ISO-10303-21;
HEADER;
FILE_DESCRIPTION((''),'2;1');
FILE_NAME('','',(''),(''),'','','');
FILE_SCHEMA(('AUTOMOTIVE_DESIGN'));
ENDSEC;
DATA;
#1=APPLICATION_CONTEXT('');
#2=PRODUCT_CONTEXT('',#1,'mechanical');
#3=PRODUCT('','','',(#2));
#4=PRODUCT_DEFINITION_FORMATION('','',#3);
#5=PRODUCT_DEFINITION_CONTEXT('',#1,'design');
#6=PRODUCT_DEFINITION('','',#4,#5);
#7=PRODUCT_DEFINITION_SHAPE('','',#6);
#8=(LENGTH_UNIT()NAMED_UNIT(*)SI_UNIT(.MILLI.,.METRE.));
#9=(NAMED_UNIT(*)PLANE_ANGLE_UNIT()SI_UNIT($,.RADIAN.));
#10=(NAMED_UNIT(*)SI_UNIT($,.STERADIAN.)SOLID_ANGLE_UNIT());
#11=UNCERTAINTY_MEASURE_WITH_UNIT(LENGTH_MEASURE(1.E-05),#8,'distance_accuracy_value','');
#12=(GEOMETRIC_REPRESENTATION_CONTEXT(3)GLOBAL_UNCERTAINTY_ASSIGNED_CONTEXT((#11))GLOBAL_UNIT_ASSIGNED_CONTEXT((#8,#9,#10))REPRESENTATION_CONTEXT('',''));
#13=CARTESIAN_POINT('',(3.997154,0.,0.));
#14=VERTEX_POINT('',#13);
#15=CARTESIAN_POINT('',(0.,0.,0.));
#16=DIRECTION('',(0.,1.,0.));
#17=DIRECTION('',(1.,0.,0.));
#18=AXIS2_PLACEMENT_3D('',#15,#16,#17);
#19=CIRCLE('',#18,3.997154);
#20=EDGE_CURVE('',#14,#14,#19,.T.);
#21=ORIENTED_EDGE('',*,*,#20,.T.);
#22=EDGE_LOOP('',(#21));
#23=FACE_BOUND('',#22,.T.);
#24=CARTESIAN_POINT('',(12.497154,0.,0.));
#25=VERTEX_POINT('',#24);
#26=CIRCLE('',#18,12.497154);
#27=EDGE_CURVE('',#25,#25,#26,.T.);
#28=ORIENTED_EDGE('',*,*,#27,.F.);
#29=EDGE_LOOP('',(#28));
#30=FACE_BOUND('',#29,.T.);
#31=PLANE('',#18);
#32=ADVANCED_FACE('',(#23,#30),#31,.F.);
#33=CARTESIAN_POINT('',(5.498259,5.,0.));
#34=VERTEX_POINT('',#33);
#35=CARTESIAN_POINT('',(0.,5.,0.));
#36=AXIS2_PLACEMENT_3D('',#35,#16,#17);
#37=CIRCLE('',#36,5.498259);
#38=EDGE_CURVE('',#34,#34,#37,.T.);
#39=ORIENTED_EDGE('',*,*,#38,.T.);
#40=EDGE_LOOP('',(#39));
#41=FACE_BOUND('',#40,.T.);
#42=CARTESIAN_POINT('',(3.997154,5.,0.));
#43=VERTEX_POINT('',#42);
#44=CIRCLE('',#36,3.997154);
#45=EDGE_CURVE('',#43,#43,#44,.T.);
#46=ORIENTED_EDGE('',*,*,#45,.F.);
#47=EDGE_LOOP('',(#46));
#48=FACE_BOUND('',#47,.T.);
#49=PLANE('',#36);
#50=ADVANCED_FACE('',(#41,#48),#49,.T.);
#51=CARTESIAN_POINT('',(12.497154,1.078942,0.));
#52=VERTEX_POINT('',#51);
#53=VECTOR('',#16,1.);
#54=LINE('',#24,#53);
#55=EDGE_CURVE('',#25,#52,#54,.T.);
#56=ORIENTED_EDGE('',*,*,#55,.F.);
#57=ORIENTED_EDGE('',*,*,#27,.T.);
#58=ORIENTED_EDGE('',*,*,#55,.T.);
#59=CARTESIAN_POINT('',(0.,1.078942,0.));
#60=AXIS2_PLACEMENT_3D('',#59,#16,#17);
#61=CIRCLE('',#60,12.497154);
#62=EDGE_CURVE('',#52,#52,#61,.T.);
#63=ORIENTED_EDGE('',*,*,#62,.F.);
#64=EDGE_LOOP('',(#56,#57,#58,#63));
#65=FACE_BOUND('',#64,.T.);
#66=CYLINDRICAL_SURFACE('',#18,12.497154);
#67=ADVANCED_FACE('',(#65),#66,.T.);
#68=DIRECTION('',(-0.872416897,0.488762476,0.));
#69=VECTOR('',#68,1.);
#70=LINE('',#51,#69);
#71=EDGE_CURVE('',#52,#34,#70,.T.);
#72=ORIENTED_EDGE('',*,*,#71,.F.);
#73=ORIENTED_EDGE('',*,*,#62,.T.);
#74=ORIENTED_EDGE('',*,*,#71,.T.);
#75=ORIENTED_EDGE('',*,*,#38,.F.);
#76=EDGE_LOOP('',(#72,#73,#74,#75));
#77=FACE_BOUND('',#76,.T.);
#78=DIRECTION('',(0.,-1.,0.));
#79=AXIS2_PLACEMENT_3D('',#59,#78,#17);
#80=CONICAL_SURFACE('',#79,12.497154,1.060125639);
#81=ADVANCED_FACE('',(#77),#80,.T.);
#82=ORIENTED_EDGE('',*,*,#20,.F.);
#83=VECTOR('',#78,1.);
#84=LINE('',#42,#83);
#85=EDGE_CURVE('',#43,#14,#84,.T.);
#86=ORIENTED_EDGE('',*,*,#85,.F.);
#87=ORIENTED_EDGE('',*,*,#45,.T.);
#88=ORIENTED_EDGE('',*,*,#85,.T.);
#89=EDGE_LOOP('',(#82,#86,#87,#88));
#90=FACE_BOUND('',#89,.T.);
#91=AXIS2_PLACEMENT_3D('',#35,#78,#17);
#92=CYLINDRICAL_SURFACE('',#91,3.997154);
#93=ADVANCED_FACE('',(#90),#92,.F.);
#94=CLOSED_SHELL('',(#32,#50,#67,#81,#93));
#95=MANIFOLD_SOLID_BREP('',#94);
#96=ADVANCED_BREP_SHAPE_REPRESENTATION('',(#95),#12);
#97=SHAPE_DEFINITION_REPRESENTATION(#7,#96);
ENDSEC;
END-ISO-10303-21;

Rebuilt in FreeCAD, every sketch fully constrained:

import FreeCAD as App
import Part
import Sketcher
from FreeCAD import Vector


def add_polygon(sketch, points):
    """Adds a closed chain of lines whose ends are joined by coincident constraints."""
    first, n = sketch.GeometryCount, len(points)
    for a, b in zip(points, points[1:] + points[:1]):
        sketch.addGeometry(Part.LineSegment(App.Vector(*a, 0), App.Vector(*b, 0)), False)
    for i in range(n):
        sketch.addConstraint(Sketcher.Constraint("Coincident", first + i, 2, first + (i + 1) % n, 1))

doc = App.newDocument("Part")
body = doc.addObject("PartDesign::Body", "Body")

# Sketch on XY plane
sketch1 = doc.addObject("Sketcher::SketchObject", "Sketch")
body.addObject(sketch1)
sketch1.AttachmentSupport = (doc.XY_Plane, [""])
sketch1.MapMode = "FlatFace"
add_polygon(sketch1, [(3.997154, 0), (12.497154, 0), (12.497154, 1.078942), (5.498259, 5), (3.997154, 5)])  # lines 0-4
sketch1.addConstraint([
    Sketcher.Constraint("Horizontal", 0),
    Sketcher.Constraint("Vertical", 1),
    Sketcher.Constraint("Horizontal", 3),
    Sketcher.Constraint("Vertical", 4),
    Sketcher.Constraint("PointOnObject", 0, 2, -1),
    Sketcher.Constraint("DistanceY", 4, 2, 4, 1, 5.0),
    Sketcher.Constraint("DistanceX", 0, 1, 0, 2, 8.5),
    Sketcher.Constraint("Distance", 2, 8.02242),
    Sketcher.Constraint("DistanceX", 3, 2, 3, 1, 1.501105),
    Sketcher.Constraint("DistanceX", -1, 1, 2, 2, 5.498259),
])
revolution = doc.addObject("PartDesign::Revolution", "Revolution")
body.addObject(revolution)
revolution.Profile = sketch1
revolution.ReferenceAxis = (sketch1, ["V_Axis"])
revolution.Angle = 360

doc.recompute()
